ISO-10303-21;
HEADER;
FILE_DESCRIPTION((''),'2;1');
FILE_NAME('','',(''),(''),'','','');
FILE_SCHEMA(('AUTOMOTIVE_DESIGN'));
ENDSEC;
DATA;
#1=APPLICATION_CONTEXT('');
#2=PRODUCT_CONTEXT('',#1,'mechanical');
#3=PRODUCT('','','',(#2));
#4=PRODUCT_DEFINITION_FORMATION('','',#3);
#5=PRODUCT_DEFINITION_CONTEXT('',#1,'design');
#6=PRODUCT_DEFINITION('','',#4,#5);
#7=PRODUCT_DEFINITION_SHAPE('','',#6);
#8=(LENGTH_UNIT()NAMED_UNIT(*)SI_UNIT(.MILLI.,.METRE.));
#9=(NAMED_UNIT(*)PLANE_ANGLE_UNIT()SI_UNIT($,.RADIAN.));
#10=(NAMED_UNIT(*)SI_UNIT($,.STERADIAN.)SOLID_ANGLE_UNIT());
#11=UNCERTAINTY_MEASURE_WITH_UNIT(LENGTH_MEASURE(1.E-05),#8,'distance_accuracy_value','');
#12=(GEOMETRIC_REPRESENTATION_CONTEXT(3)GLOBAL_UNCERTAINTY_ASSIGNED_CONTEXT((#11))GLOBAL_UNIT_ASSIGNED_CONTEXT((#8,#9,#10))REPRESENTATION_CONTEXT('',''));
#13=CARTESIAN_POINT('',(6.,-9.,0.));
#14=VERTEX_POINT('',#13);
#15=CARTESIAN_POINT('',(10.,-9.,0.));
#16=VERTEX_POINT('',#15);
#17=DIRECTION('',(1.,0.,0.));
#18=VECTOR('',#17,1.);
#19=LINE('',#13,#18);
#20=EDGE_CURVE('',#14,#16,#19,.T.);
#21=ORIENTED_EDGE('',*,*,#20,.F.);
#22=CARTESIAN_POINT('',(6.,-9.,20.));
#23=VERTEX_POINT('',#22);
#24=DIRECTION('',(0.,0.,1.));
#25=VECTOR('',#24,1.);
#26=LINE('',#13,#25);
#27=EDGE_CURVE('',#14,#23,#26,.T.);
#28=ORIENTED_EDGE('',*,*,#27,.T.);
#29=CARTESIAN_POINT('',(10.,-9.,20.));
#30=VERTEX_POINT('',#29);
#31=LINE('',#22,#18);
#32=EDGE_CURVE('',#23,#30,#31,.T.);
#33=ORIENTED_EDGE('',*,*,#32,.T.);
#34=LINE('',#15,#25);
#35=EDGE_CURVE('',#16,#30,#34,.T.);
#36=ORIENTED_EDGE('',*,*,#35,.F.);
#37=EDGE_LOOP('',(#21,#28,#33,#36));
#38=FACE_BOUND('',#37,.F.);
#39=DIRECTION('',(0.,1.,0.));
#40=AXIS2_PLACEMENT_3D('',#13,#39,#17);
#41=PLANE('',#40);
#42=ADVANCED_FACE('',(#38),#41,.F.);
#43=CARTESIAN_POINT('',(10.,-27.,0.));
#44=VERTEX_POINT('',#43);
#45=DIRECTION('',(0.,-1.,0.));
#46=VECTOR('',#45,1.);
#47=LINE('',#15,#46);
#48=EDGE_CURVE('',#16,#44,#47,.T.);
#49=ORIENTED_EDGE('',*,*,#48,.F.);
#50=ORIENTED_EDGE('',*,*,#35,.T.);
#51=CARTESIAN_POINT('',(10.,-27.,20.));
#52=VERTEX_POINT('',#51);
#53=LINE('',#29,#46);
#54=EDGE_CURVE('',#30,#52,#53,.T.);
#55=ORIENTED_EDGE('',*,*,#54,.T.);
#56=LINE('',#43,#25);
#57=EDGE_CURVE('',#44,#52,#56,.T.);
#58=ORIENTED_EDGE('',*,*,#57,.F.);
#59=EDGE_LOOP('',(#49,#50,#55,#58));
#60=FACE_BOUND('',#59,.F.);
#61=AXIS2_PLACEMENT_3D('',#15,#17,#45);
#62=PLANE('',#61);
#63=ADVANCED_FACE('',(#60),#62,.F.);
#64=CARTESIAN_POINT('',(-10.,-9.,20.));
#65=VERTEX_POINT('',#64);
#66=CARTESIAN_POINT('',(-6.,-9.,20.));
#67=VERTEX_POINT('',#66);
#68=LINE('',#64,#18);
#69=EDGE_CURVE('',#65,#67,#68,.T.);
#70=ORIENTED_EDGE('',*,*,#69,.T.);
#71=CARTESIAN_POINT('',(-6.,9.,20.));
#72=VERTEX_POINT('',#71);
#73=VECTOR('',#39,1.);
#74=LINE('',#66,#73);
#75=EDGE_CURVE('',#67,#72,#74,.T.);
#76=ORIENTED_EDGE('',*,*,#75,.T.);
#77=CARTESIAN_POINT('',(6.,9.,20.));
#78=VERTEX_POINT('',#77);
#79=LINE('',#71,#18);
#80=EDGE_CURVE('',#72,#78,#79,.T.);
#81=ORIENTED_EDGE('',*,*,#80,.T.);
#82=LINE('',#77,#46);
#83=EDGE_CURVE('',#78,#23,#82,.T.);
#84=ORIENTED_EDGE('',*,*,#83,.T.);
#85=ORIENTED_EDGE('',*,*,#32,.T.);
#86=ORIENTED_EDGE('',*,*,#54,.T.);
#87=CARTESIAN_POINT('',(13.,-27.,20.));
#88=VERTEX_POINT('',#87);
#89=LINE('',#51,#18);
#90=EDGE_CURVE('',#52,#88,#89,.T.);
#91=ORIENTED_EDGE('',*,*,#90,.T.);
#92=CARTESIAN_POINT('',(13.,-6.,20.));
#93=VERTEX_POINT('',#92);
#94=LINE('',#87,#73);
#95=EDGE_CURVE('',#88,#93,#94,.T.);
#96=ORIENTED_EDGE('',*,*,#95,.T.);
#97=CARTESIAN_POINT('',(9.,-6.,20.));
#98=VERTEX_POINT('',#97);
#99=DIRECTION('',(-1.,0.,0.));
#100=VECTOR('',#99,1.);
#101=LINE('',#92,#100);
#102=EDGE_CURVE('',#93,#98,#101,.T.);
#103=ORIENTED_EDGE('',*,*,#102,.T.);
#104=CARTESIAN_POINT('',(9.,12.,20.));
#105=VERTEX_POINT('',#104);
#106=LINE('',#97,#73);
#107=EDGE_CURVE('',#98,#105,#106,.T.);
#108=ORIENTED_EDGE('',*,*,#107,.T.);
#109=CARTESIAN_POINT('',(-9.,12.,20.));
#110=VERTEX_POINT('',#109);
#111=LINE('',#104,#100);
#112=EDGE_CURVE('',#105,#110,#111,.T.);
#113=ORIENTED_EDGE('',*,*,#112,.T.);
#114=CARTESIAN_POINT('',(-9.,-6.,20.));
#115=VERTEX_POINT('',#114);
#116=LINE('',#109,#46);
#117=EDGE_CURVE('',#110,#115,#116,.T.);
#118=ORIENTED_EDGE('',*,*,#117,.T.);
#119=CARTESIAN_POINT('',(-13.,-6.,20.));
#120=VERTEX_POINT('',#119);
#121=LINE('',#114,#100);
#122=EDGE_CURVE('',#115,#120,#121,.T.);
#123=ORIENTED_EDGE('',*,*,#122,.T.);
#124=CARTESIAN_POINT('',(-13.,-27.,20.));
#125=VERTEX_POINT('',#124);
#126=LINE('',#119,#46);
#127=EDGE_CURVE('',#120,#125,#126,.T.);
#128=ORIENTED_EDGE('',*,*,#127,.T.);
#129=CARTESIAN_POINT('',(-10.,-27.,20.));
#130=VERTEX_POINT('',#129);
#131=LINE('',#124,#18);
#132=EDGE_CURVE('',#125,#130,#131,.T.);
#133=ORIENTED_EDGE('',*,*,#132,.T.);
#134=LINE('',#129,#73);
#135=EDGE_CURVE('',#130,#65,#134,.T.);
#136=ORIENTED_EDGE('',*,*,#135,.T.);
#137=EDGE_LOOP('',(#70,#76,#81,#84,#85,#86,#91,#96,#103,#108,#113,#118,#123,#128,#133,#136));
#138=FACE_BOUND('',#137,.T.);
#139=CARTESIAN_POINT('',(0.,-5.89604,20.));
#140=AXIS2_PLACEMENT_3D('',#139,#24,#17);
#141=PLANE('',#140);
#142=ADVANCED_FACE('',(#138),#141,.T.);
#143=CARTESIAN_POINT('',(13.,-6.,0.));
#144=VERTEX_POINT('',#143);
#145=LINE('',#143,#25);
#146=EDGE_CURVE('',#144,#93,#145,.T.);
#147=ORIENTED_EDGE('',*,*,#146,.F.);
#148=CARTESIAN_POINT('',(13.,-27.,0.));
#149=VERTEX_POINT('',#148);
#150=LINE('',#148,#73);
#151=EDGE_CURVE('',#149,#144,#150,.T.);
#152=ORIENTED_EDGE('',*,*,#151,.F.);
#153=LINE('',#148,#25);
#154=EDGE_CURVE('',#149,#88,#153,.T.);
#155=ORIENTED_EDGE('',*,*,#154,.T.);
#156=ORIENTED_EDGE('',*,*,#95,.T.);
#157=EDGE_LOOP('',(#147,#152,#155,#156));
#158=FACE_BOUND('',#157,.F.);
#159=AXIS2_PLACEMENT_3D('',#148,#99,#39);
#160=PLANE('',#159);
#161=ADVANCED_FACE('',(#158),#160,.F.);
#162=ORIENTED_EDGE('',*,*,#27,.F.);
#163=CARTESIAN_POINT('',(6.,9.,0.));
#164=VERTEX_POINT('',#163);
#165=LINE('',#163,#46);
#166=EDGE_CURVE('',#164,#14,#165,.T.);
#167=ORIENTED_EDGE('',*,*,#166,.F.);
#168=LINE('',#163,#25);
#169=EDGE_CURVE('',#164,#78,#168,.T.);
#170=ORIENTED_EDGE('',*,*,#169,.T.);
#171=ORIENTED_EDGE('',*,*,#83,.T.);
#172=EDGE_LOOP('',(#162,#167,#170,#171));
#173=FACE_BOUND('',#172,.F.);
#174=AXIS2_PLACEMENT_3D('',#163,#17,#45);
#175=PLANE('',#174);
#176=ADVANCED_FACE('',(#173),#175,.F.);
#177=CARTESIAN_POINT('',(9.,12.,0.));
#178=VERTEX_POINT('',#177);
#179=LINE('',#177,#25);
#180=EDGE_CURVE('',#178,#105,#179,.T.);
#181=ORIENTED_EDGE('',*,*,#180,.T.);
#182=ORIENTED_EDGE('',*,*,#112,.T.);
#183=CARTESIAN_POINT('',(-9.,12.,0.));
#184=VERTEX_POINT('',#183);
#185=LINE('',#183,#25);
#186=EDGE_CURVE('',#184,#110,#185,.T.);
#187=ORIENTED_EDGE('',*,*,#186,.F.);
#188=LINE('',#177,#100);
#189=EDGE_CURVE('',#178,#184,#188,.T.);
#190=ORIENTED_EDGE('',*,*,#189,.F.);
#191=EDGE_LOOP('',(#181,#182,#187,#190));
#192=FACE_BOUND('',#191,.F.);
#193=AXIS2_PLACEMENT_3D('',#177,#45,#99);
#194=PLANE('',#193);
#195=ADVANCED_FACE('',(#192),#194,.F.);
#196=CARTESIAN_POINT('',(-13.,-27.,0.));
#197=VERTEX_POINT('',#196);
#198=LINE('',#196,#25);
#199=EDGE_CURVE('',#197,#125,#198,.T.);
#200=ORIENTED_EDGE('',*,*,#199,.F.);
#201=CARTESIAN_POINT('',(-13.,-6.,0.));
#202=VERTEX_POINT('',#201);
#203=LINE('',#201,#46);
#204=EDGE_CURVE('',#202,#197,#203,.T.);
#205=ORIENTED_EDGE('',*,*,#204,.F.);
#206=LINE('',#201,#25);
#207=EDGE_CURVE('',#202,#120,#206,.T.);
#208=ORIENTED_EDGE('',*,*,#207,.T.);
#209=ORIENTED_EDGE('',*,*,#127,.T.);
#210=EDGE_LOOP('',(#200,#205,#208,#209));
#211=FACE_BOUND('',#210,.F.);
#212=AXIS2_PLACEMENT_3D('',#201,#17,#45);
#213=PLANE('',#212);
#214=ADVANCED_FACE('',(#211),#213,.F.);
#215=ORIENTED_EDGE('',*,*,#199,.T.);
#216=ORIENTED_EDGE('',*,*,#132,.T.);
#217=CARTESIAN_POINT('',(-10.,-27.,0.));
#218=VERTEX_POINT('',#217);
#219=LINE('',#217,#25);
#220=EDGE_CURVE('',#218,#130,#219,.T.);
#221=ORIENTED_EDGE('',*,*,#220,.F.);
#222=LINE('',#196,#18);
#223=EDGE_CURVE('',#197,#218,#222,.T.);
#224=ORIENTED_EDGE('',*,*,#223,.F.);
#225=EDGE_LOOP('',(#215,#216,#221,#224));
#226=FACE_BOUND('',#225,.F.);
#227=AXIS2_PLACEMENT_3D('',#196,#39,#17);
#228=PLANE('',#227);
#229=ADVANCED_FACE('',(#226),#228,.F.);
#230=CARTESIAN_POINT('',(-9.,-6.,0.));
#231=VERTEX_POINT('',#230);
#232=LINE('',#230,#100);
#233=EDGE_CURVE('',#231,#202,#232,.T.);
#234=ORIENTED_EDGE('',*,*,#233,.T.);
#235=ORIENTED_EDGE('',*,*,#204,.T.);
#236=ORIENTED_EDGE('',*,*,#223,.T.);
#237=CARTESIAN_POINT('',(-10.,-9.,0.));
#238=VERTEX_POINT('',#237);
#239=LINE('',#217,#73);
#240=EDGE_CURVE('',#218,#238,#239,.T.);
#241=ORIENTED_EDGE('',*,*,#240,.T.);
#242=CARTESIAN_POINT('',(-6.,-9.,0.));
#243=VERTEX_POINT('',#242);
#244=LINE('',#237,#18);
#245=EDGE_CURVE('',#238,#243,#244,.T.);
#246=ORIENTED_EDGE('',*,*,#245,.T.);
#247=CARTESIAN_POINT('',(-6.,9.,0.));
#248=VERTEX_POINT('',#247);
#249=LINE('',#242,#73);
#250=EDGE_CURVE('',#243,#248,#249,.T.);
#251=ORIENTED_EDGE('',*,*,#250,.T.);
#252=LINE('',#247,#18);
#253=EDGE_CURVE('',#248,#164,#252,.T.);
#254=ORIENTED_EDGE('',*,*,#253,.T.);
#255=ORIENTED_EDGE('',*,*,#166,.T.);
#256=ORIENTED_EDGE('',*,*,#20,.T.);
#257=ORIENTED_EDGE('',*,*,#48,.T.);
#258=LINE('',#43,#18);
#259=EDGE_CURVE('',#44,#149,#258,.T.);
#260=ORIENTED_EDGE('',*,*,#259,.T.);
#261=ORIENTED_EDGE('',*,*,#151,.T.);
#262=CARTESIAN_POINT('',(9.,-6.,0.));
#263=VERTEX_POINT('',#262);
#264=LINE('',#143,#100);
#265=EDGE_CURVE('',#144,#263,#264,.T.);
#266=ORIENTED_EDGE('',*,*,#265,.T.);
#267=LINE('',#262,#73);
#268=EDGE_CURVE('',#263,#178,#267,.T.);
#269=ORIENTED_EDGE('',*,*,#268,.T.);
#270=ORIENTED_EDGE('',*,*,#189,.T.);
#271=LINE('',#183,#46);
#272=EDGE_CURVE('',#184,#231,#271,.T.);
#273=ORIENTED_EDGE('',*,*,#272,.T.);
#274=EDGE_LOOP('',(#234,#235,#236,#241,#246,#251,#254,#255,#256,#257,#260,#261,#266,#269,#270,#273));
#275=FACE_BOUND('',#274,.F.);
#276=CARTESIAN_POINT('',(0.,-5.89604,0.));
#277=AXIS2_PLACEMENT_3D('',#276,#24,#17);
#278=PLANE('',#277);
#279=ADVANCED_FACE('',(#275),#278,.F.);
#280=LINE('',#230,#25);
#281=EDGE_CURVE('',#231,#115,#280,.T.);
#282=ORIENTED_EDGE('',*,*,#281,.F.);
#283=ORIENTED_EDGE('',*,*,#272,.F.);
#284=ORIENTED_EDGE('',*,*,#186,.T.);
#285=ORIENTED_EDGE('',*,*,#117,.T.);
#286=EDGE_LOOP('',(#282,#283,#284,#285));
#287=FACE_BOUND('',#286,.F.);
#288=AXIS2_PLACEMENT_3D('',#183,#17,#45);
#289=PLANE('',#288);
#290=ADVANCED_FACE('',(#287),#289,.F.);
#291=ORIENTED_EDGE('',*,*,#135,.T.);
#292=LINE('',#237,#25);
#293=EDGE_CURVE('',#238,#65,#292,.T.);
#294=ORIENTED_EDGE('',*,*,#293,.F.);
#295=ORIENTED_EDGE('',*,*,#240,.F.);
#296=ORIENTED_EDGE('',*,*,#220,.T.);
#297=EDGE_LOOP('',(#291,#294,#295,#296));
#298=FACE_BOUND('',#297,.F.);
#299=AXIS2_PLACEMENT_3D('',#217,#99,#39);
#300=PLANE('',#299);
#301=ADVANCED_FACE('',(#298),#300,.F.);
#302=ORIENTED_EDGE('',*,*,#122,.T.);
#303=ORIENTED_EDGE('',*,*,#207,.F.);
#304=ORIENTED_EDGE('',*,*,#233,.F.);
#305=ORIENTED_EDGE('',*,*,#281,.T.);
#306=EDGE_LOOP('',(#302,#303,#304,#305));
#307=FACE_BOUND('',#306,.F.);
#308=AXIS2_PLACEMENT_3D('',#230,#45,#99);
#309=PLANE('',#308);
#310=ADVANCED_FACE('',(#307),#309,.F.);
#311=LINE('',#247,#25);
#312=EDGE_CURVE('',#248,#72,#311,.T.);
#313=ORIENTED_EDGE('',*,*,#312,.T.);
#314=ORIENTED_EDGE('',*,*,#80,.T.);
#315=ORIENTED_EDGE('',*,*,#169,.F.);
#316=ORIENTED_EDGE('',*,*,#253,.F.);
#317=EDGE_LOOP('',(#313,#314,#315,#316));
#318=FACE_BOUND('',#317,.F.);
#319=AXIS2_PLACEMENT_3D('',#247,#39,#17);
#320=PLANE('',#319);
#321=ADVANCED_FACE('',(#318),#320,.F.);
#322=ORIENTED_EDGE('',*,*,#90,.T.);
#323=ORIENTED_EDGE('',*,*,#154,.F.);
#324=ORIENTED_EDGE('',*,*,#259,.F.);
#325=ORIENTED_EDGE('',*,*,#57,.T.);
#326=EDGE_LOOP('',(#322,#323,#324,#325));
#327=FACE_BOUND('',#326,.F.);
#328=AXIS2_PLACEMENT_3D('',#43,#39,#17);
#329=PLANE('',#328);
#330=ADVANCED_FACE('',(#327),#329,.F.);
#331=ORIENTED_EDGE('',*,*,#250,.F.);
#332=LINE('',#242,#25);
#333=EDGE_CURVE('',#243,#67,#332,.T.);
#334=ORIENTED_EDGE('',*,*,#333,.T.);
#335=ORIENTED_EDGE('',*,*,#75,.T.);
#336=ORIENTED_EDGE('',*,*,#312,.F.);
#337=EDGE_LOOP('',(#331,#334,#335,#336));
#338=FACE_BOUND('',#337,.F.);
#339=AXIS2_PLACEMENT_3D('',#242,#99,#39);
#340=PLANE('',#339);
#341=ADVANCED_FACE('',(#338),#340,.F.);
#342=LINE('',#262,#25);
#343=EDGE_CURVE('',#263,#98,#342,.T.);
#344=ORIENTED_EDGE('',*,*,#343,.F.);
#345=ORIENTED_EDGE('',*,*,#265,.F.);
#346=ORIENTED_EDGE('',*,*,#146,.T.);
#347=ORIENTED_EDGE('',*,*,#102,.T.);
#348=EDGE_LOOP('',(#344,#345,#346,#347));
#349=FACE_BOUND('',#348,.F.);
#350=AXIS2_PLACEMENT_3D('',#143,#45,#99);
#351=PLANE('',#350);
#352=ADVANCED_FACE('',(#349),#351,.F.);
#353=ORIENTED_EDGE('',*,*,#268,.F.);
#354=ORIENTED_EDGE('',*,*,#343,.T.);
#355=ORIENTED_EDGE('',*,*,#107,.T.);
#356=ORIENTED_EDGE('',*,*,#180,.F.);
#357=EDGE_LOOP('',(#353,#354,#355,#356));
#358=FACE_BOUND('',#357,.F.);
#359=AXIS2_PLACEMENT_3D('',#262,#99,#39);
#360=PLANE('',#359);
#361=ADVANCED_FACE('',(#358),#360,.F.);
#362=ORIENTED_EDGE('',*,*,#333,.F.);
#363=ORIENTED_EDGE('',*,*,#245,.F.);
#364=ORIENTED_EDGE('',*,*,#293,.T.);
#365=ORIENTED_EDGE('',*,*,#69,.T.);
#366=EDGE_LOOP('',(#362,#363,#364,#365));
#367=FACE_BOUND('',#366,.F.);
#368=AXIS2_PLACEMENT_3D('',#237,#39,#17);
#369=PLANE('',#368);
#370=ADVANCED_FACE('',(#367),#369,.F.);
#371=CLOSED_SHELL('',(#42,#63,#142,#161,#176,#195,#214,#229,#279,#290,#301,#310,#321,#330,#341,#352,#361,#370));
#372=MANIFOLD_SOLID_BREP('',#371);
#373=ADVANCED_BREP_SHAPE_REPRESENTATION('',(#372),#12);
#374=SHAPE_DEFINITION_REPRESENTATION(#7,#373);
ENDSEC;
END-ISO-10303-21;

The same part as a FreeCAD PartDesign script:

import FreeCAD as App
import Part
import Sketcher

V = App.Vector


def add_polygon(sketch, points):
    """Adds a closed chain of lines whose ends are joined by coincident constraints."""
    first, n = sketch.GeometryCount, len(points)
    for a, b in zip(points, points[1:] + points[:1]):
        sketch.addGeometry(Part.LineSegment(App.Vector(*a, 0), App.Vector(*b, 0)), False)
    for i in range(n):
        sketch.addConstraint(Sketcher.Constraint("Coincident", first + i, 2, first + (i + 1) % n, 1))

doc = App.newDocument("Part")
body = doc.addObject("PartDesign::Body", "Body")

# Sketch on XY plane
sketch1 = body.newObject("Sketcher::SketchObject", "Sketch")
sketch1.AttachmentSupport = (doc.getObject("XY_Plane"), [""])
sketch1.MapMode = "FlatFace"
add_polygon(sketch1, [(-6, -9), (-6, 9), (6, 9), (6, -9), (10, -9), (10, -27), (13, -27), (13, -6), (9, -6), (9, 12), (-9, 12), (-9, -6), (-13, -6), (-13, -27), (-10, -27), (-10, -9)])  # lines 0-15
sketch1.addConstraint(Sketcher.Constraint("Vertical", 0))
sketch1.addConstraint(Sketcher.Constraint("Horizontal", 1))
sketch1.addConstraint(Sketcher.Constraint("Vertical", 2))
sketch1.addConstraint(Sketcher.Constraint("Horizontal", 3))
sketch1.addConstraint(Sketcher.Constraint("Vertical", 4))
sketch1.addConstraint(Sketcher.Constraint("Horizontal", 5))
sketch1.addConstraint(Sketcher.Constraint("Vertical", 6))
sketch1.addConstraint(Sketcher.Constraint("Horizontal", 7))
sketch1.addConstraint(Sketcher.Constraint("Vertical", 8))
sketch1.addConstraint(Sketcher.Constraint("Horizontal", 9))
sketch1.addConstraint(Sketcher.Constraint("Vertical", 10))
sketch1.addConstraint(Sketcher.Constraint("Horizontal", 11))
sketch1.addConstraint(Sketcher.Constraint("Vertical", 12))
sketch1.addConstraint(Sketcher.Constraint("Horizontal", 13))
sketch1.addConstraint(Sketcher.Constraint("Vertical", 14))
sketch1.addConstraint(Sketcher.Constraint("Horizontal", 15))
sketch1.addConstraint(Sketcher.Constraint("Symmetric", 0, 2, 2, 2, -1, 1))
sketch1.addConstraint(Sketcher.Constraint("Symmetric", 7, 2, 10, 2, -2))
sketch1.addConstraint(Sketcher.Constraint("Symmetric", 5, 2, 12, 2, -2))
sketch1.addConstraint(Sketcher.Constraint("Symmetric", 3, 2, 14, 2, -2))
sketch1.addConstraint(Sketcher.Constraint("Equal", 3, 7))
sketch1.addConstraint(Sketcher.Constraint("Equal", 9, 0))
sketch1.addConstraint(Sketcher.Constraint("Equal", 2, 4))
sketch1.addConstraint(Sketcher.Constraint("Equal", 4, 8))
sketch1.addConstraint(Sketcher.Constraint("DistanceX", 1, 1, 1, 2, 12.0))
sketch1.addConstraint(Sketcher.Constraint("DistanceX", 3, 1, 3, 2, 4.0))
sketch1.addConstraint(Sketcher.Constraint("DistanceX", 5, 1, 5, 2, 3.0))
sketch1.addConstraint(Sketcher.Constraint("DistanceY", 6, 1, 6, 2, 21.0))
pad1 = body.newObject("PartDesign::Pad", "Pad")
pad1.Profile = sketch1
pad1.Length = 20

doc.recompute()
